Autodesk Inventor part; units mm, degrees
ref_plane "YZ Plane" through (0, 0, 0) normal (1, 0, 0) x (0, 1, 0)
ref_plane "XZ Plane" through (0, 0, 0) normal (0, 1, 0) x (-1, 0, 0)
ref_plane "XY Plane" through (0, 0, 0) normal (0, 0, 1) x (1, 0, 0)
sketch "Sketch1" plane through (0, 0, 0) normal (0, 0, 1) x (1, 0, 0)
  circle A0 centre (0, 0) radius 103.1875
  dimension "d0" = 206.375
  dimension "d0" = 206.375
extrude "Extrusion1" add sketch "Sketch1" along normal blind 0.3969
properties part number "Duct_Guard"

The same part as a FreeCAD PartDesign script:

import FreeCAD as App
import Part
import Sketcher
Q = App.Units.Quantity

doc = App.newDocument("Part")
body = doc.addObject("PartDesign::Body", "Body")

# Sketch on XY plane
sketch1 = body.newObject("Sketcher::SketchObject", "Sketch")
sketch1.AttachmentSupport = (doc.getObject("XY_Plane"), [""])
sketch1.MapMode = "FlatFace"
sketch1.addGeometry(Part.Circle(App.Vector(0, 0, 0), App.Vector(0, 0, 1), 103.1875), False)
sketch1.addConstraint([
    Sketcher.Constraint("Coincident", 0, 3, -1, 1),
    Sketcher.Constraint("Diameter", 0, Q("8.125 in")),
])
pad1 = body.newObject("PartDesign::Pad", "Pad")
pad1.Profile = sketch1
pad1.Length = Q("0.015626 in")

doc.recompute()
